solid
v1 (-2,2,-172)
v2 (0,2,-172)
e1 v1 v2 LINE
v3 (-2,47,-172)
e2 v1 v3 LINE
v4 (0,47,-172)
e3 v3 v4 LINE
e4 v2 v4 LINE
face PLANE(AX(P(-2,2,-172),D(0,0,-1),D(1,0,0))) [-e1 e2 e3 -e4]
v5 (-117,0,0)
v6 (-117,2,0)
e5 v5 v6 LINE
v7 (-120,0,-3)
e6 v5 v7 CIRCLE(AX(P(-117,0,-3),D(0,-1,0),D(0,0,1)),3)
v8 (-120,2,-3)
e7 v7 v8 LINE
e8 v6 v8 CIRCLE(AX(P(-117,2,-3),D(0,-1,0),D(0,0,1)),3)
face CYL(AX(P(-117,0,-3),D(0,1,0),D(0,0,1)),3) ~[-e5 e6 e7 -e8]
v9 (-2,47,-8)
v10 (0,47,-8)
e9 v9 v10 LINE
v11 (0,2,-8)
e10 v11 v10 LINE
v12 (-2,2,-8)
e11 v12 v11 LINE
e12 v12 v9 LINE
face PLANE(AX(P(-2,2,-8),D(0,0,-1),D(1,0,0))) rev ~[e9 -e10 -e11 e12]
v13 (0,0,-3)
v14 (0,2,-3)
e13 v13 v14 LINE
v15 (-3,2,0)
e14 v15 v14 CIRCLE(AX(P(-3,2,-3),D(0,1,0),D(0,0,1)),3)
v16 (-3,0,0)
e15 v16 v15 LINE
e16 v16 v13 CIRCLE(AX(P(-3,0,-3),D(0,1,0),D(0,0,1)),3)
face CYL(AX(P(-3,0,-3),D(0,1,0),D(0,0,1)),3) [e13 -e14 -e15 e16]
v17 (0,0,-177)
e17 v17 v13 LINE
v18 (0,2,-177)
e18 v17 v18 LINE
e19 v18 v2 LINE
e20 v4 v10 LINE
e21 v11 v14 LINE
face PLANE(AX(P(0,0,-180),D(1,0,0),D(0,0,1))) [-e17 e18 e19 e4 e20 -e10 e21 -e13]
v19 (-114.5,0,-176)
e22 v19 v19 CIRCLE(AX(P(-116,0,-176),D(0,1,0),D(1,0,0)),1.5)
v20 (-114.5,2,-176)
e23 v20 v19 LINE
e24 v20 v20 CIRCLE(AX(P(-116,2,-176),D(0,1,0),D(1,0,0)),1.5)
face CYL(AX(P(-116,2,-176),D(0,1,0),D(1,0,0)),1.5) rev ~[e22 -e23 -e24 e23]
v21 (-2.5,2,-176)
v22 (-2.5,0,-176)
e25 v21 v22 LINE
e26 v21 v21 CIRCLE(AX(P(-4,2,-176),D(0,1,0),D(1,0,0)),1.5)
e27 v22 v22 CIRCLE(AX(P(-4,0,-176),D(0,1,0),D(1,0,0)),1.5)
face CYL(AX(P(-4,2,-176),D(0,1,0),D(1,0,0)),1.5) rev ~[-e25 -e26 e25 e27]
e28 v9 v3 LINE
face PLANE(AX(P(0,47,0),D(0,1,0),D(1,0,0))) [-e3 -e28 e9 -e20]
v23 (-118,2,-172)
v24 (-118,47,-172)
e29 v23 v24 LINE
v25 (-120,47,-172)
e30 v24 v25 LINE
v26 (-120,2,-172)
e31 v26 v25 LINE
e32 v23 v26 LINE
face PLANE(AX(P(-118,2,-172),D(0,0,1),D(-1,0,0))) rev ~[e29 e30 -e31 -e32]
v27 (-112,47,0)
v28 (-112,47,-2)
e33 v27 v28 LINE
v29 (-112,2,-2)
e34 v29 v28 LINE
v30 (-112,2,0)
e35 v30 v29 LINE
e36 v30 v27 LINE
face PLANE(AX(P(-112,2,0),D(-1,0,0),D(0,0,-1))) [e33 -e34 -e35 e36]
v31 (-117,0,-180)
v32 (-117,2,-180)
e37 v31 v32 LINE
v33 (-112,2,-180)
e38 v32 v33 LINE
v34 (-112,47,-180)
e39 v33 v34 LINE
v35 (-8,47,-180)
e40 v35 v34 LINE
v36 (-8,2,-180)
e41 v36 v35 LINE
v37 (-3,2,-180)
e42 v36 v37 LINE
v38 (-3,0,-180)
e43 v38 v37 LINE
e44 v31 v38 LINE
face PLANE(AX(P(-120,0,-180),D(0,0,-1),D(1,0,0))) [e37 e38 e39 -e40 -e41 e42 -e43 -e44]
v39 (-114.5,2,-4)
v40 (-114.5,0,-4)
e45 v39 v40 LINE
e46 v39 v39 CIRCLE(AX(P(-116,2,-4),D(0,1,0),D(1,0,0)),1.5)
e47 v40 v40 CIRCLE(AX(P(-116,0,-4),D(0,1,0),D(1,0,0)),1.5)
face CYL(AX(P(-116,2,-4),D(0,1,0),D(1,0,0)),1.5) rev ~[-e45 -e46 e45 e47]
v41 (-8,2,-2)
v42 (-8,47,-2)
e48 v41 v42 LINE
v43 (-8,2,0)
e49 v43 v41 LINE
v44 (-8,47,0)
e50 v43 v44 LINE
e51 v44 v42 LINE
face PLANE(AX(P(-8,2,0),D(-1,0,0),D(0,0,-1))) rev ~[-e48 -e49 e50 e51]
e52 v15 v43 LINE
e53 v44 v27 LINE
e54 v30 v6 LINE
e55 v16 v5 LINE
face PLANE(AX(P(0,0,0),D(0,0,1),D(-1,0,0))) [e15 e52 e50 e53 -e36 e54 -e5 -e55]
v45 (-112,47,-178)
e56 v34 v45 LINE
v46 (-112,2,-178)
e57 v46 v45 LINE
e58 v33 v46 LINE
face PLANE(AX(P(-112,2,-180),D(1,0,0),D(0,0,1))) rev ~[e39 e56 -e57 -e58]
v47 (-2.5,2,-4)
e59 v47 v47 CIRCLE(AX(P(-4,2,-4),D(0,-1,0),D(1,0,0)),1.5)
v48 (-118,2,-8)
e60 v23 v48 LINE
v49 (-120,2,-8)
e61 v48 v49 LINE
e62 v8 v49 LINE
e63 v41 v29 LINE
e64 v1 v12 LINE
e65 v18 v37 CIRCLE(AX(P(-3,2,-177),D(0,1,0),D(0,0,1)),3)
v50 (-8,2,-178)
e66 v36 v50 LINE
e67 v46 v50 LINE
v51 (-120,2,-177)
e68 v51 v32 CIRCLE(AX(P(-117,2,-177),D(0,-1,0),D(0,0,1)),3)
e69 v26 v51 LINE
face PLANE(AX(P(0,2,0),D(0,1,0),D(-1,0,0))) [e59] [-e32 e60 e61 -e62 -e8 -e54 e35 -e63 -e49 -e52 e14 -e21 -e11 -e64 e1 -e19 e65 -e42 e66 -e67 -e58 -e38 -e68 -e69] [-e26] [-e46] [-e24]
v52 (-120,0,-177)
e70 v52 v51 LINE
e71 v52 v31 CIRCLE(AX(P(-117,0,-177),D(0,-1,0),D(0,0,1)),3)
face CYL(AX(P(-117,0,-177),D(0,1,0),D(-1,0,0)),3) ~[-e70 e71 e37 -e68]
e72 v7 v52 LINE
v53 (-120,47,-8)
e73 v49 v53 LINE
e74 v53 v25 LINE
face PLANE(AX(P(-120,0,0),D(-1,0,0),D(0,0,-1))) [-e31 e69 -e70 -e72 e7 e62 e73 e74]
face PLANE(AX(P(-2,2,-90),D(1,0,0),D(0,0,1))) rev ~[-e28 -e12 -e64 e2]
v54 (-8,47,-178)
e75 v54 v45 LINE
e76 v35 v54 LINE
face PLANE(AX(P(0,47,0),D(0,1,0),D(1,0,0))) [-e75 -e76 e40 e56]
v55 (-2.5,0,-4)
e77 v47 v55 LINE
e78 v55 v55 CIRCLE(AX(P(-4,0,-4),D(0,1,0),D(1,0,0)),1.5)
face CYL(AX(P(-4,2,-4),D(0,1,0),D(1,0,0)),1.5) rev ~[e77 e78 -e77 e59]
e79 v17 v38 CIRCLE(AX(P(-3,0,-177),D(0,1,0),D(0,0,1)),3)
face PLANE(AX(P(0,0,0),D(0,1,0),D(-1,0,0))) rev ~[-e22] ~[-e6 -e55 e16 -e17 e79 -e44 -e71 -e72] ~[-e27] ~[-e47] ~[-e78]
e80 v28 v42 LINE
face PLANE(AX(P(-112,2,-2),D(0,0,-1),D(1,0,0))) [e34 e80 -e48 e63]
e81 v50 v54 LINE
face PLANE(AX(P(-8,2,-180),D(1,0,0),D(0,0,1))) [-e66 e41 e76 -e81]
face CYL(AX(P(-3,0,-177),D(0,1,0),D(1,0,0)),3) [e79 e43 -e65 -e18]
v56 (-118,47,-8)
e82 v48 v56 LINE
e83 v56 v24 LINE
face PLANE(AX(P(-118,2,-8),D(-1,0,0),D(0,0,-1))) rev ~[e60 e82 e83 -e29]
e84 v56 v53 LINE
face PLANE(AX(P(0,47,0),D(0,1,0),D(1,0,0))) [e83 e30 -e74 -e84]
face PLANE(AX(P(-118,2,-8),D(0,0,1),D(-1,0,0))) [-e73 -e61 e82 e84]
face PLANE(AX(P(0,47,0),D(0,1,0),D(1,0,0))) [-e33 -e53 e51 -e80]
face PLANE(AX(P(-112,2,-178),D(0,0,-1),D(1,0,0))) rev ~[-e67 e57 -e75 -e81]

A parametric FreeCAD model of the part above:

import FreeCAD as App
import Part
import Sketcher


def edges_at(feature, points):
    """Names of the edges that pass closest to the given points."""
    edges = feature.Shape.Edges
    near = lambda p: min(range(len(edges)), key=lambda i: edges[i].distToShape(Part.Vertex(*p))[0])
    return sorted({f"Edge{near(p) + 1}" for p in points})


def add_polygon(sketch, points):
    """Adds a closed chain of lines whose ends are joined by coincident constraints."""
    first, n = sketch.GeometryCount, len(points)
    for a, b in zip(points, points[1:] + points[:1]):
        sketch.addGeometry(Part.LineSegment(App.Vector(*a, 0), App.Vector(*b, 0)), False)
    for i in range(n):
        sketch.addConstraint(Sketcher.Constraint("Coincident", first + i, 2, first + (i + 1) % n, 1))

doc = App.newDocument("Part")
body = doc.addObject("PartDesign::Body", "Body")

# Sketch on XZ plane
sketch1 = doc.addObject("Sketcher::SketchObject", "Sketch")
body.addObject(sketch1)
sketch1.AttachmentSupport = (doc.XZ_Plane, [""])
sketch1.MapMode = "FlatFace"
add_polygon(sketch1, [(-120, 0), (0, 0), (0, -180), (-120, -180)])  # lines 0-3
sketch1.addConstraint([
    Sketcher.Constraint("Horizontal", 0),
    Sketcher.Constraint("Vertical", 1),
    Sketcher.Constraint("Horizontal", 2),
    Sketcher.Constraint("Vertical", 3),
    Sketcher.Constraint("Coincident", 0, 2, -1, 1),
    Sketcher.Constraint("DistanceX", 0, 1, 0, 2, 120.0),
    Sketcher.Constraint("DistanceY", 1, 2, 1, 1, 180.0),
])
pad1 = doc.addObject("PartDesign::Pad", "Pad")
body.addObject(pad1)
pad1.Profile = sketch1
pad1.Length = 2
pad1.Reversed = True

# Sketch on XZ plane
sketch2 = doc.addObject("Sketcher::SketchObject", "Sketch001")
body.addObject(sketch2)
sketch2.AttachmentSupport = (doc.XZ_Plane, [""])
sketch2.MapMode = "FlatFace"
sketch2.AttachmentOffset = App.Placement(App.Vector(0, 0, -2), App.Rotation())
add_polygon(sketch2, [(-112, -2), (-112, 0), (-8, 0), (-8, -2)])  # lines 0-3
add_polygon(sketch2, [(-120, -8), (-118, -8), (-118, -172), (-120, -172)])  # lines 4-7
add_polygon(sketch2, [(-2, -8), (0, -8), (0, -172), (-2, -172)])  # lines 8-11
add_polygon(sketch2, [(-112, -178), (-8, -178), (-8, -180), (-112, -180)])  # lines 12-15
sketch2.addConstraint([
    Sketcher.Constraint("Vertical", 0),
    Sketcher.Constraint("Horizontal", 1),
    Sketcher.Constraint("Vertical", 2),
    Sketcher.Constraint("Horizontal", 3),
    Sketcher.Constraint("Horizontal", 4),
    Sketcher.Constraint("Vertical", 5),
    Sketcher.Constraint("Horizontal", 6),
    Sketcher.Constraint("Vertical", 7),
    Sketcher.Constraint("Horizontal", 8),
    Sketcher.Constraint("Vertical", 9),
    Sketcher.Constraint("Horizontal", 10),
    Sketcher.Constraint("Vertical", 11),
    Sketcher.Constraint("Horizontal", 12),
    Sketcher.Constraint("Vertical", 13),
    Sketcher.Constraint("Horizontal", 14),
    Sketcher.Constraint("Vertical", 15),
    Sketcher.Constraint("PointOnObject", 0, 2, -1),
    Sketcher.Constraint("PointOnObject", 8, 2, -2),
    Sketcher.Constraint("Horizontal", 7, 2, 8, 2),
    Sketcher.Constraint("Horizontal", 6, 2, 9, 2),
    Sketcher.Constraint("Vertical", 2, 2, 12, 2),
    Sketcher.Constraint("Vertical", 3, 2, 14, 2),
    Sketcher.Constraint("Equal", 6, 8),
    Sketcher.Constraint("Equal", 10, 0),
    Sketcher.Constraint("Equal", 2, 13),
    Sketcher.Constraint("DistanceX", 4, 1, 4, 2, 2.0),
    Sketcher.Constraint("DistanceX", 1, 2, -1, 1, 8.0),
    Sketcher.Constraint("DistanceY", 4, 2, -1, 1, 8.0),
    Sketcher.Constraint("DistanceX", 6, 2, 3, 2, 8.0),
    Sketcher.Constraint("DistanceY", 13, 2, 10, 2, 8.0),
    Sketcher.Constraint("DistanceX", 1, 1, 1, 2, 104.0),
    Sketcher.Constraint("DistanceY", 5, 2, 5, 1, 164.0),
])
pad2 = doc.addObject("PartDesign::Pad", "Pad001")
body.addObject(pad2)
pad2.Profile = sketch2
pad2.Length = 45
pad2.Reversed = True

# Sketch on XZ plane
sketch3 = doc.addObject("Sketcher::SketchObject", "Sketch002")
body.addObject(sketch3)
sketch3.AttachmentSupport = (doc.XZ_Plane, [""])
sketch3.MapMode = "FlatFace"
sketch3.AttachmentOffset = App.Placement(App.Vector(0, 0, -2), App.Rotation())
sketch3.addGeometry([
    Part.Circle(App.Vector(-4, -4, 0), App.Vector(0, 0, 1), 1.5),
    Part.Circle(App.Vector(-4, -176, 0), App.Vector(0, 0, 1), 1.5),
    Part.Circle(App.Vector(-116, -4, 0), App.Vector(0, 0, 1), 1.5),
    Part.Circle(App.Vector(-116, -176, 0), App.Vector(0, 0, 1), 1.5),
], False)
sketch3.addConstraint([
    Sketcher.Constraint("Equal", 0, 1),
    Sketcher.Constraint("Equal", 1, 2),
    Sketcher.Constraint("Equal", 2, 3),
    Sketcher.Constraint("Horizontal", 0, 3, 2, 3),
    Sketcher.Constraint("Horizontal", 1, 3, 3, 3),
    Sketcher.Constraint("Vertical", 0, 3, 1, 3),
    Sketcher.Constraint("Vertical", 2, 3, 3, 3),
    Sketcher.Constraint("Diameter", 0, 3.0),
    Sketcher.Constraint("DistanceX", 0, 3, -1, 1, 4.0),
    Sketcher.Constraint("DistanceY", 0, 3, -1, 1, 4.0),
    Sketcher.Constraint("DistanceY", 1, 3, -1, 1, 176.0),
    Sketcher.Constraint("DistanceX", 2, 3, -1, 1, 116.0),
])
pocket1 = doc.addObject("PartDesign::Pocket", "Pocket")
body.addObject(pocket1)
pocket1.Profile = sketch3
pocket1.Length = 45
pocket1.Reversed = True
doc.recompute()

fillet = doc.addObject("PartDesign::Fillet", "Fillet")
body.addObject(fillet)
fillet.Base = (pocket1, edges_at(pocket1, [
    (-120, 1, -180),
    (0, 1, -180),
    (-120, 1, 0),
    (0, 1, 0),
]))
fillet.Radius = 3

doc.recompute()
